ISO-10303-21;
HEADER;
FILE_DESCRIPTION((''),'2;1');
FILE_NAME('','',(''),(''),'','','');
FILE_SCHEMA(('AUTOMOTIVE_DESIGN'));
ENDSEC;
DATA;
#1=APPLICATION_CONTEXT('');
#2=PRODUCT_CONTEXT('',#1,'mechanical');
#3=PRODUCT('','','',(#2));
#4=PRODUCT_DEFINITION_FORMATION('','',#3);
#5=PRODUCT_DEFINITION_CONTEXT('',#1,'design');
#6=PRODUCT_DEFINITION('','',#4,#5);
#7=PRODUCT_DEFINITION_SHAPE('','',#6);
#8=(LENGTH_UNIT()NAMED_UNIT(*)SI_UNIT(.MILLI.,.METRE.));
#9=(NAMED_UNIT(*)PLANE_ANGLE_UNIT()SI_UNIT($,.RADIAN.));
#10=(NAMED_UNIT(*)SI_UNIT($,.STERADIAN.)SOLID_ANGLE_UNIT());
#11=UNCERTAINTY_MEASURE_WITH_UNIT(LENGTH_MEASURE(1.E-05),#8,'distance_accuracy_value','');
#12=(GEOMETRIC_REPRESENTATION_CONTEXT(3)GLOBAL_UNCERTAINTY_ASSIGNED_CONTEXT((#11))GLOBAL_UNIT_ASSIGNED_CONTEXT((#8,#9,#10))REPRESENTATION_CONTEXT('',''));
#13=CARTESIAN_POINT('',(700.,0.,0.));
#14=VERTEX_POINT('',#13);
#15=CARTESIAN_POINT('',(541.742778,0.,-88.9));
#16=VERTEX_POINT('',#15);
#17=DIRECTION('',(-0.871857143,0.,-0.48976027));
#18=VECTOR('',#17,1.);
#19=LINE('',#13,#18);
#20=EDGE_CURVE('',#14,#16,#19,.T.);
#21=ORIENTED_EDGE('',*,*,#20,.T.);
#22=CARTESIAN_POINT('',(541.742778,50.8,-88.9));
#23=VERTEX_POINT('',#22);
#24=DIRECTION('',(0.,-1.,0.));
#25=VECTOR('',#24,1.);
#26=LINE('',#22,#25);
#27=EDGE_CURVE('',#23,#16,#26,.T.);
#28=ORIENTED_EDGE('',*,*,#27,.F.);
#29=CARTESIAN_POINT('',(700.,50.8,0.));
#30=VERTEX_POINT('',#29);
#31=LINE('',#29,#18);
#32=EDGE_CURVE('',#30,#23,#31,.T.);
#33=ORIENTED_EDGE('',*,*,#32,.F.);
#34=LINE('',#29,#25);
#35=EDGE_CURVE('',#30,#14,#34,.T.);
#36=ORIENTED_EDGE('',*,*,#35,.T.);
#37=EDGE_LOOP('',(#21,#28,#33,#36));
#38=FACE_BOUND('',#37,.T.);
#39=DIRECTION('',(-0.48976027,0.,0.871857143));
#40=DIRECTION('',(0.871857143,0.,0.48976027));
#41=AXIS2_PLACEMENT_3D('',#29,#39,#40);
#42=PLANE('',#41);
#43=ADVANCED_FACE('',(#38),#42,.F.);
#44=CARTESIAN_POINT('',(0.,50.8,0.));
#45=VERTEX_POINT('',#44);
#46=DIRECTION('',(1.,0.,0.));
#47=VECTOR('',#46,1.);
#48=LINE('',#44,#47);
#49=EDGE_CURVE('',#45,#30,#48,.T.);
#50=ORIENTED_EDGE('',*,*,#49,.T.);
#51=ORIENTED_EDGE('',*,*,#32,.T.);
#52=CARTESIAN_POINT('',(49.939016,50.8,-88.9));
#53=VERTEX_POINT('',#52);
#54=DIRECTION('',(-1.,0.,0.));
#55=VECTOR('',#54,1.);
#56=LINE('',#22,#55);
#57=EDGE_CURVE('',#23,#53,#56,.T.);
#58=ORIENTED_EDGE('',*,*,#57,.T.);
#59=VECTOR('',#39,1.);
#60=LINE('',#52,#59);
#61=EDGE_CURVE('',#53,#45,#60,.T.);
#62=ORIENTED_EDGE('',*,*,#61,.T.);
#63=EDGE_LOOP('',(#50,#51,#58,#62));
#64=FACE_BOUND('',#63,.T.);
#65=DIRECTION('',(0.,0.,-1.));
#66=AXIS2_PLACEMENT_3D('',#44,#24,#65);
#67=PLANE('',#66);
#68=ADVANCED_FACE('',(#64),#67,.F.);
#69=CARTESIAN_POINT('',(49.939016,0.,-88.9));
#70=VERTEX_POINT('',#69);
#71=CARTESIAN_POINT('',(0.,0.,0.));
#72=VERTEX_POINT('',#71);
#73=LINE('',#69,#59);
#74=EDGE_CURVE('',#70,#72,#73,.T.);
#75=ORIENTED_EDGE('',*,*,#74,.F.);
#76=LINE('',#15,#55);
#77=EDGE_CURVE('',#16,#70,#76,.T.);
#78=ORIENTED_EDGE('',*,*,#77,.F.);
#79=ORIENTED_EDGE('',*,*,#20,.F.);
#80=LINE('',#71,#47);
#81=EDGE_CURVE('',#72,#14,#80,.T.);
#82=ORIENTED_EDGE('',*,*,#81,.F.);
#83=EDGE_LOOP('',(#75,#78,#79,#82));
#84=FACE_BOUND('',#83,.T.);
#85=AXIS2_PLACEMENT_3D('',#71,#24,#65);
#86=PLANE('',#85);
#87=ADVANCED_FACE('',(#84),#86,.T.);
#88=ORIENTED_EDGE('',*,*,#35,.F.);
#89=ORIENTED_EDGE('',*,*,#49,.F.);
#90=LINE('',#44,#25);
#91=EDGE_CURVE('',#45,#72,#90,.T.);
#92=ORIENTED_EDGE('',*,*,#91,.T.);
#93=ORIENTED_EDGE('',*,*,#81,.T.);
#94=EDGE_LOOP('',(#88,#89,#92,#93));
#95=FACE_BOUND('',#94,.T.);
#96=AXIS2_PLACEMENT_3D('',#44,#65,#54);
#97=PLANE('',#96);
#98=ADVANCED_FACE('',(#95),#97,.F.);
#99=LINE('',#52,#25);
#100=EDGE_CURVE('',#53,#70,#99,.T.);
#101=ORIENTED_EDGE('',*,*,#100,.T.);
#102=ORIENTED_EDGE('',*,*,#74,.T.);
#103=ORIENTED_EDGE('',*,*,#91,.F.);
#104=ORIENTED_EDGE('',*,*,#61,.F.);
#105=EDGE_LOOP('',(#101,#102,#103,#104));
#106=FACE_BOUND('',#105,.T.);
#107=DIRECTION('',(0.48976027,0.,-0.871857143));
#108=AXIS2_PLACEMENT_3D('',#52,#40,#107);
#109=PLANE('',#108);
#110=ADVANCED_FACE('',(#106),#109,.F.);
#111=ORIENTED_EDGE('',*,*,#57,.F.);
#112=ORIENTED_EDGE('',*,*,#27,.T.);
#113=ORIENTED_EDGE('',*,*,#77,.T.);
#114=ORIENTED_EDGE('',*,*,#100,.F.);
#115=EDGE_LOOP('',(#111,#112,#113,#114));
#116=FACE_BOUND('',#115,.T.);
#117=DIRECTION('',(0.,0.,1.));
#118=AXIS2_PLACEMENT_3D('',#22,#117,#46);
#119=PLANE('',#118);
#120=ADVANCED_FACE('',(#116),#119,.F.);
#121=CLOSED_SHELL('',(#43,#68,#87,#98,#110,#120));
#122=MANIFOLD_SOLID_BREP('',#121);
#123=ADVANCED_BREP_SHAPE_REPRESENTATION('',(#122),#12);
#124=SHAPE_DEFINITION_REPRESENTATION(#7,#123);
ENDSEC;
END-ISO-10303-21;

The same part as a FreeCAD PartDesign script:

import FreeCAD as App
import Part
import Sketcher

V = App.Vector
Q = App.Units.Quantity

doc = App.newDocument("Part")
body = doc.addObject("PartDesign::Body", "Body")

sketch1 = body.newObject("Sketcher::SketchObject", "Sketch")
sketch1.AttachmentSupport = (doc.getObject("XZ_Plane"), [""])
sketch1.MapMode = "FlatFace"
sketch1.addGeometry(Part.LineSegment(V(0, 0, 0), V(700, 0, 0)), False)
sketch1.addGeometry(Part.LineSegment(V(700, 0, 0), V(541.742778, -88.9, 0)), False)
sketch1.addGeometry(Part.LineSegment(V(541.742778, -88.9, 0), V(49.939016, -88.9, 0)), False)
sketch1.addGeometry(Part.LineSegment(V(49.939016, -88.9, 0), V(0, 0, 0)), False)
sketch1.addConstraint(Sketcher.Constraint("Coincident", 0, 2, 1, 1))
sketch1.addConstraint(Sketcher.Constraint("Coincident", 1, 2, 2, 1))
sketch1.addConstraint(Sketcher.Constraint("Coincident", 2, 2, 3, 1))
sketch1.addConstraint(Sketcher.Constraint("Coincident", 3, 2, 0, 1))
sketch1.addConstraint(Sketcher.Constraint("Horizontal", 0))
sketch1.addConstraint(Sketcher.Constraint("Horizontal", 2))
sketch1.addConstraint(Sketcher.Constraint("Coincident", 3, 2, -1, 1))
sketch1.addConstraint(Sketcher.Constraint("Perpendicular", 1, 3))
sketch1.addConstraint(Sketcher.Constraint("DistanceX", 0, 1, 0, 2, Q("700 mm")))
sketch1.addConstraint(Sketcher.Constraint("DistanceY", 1, 2, -1, 1, Q("88.9 mm")))
sketch1.addConstraint(Sketcher.Constraint("DistanceX", 2, 2, 2, 1, Q("491.803761 mm")))
pad1 = body.newObject("PartDesign::Pad", "Pad")
pad1.Profile = sketch1
pad1.Length = 50.8
pad1.Reversed = True

doc.recompute()
